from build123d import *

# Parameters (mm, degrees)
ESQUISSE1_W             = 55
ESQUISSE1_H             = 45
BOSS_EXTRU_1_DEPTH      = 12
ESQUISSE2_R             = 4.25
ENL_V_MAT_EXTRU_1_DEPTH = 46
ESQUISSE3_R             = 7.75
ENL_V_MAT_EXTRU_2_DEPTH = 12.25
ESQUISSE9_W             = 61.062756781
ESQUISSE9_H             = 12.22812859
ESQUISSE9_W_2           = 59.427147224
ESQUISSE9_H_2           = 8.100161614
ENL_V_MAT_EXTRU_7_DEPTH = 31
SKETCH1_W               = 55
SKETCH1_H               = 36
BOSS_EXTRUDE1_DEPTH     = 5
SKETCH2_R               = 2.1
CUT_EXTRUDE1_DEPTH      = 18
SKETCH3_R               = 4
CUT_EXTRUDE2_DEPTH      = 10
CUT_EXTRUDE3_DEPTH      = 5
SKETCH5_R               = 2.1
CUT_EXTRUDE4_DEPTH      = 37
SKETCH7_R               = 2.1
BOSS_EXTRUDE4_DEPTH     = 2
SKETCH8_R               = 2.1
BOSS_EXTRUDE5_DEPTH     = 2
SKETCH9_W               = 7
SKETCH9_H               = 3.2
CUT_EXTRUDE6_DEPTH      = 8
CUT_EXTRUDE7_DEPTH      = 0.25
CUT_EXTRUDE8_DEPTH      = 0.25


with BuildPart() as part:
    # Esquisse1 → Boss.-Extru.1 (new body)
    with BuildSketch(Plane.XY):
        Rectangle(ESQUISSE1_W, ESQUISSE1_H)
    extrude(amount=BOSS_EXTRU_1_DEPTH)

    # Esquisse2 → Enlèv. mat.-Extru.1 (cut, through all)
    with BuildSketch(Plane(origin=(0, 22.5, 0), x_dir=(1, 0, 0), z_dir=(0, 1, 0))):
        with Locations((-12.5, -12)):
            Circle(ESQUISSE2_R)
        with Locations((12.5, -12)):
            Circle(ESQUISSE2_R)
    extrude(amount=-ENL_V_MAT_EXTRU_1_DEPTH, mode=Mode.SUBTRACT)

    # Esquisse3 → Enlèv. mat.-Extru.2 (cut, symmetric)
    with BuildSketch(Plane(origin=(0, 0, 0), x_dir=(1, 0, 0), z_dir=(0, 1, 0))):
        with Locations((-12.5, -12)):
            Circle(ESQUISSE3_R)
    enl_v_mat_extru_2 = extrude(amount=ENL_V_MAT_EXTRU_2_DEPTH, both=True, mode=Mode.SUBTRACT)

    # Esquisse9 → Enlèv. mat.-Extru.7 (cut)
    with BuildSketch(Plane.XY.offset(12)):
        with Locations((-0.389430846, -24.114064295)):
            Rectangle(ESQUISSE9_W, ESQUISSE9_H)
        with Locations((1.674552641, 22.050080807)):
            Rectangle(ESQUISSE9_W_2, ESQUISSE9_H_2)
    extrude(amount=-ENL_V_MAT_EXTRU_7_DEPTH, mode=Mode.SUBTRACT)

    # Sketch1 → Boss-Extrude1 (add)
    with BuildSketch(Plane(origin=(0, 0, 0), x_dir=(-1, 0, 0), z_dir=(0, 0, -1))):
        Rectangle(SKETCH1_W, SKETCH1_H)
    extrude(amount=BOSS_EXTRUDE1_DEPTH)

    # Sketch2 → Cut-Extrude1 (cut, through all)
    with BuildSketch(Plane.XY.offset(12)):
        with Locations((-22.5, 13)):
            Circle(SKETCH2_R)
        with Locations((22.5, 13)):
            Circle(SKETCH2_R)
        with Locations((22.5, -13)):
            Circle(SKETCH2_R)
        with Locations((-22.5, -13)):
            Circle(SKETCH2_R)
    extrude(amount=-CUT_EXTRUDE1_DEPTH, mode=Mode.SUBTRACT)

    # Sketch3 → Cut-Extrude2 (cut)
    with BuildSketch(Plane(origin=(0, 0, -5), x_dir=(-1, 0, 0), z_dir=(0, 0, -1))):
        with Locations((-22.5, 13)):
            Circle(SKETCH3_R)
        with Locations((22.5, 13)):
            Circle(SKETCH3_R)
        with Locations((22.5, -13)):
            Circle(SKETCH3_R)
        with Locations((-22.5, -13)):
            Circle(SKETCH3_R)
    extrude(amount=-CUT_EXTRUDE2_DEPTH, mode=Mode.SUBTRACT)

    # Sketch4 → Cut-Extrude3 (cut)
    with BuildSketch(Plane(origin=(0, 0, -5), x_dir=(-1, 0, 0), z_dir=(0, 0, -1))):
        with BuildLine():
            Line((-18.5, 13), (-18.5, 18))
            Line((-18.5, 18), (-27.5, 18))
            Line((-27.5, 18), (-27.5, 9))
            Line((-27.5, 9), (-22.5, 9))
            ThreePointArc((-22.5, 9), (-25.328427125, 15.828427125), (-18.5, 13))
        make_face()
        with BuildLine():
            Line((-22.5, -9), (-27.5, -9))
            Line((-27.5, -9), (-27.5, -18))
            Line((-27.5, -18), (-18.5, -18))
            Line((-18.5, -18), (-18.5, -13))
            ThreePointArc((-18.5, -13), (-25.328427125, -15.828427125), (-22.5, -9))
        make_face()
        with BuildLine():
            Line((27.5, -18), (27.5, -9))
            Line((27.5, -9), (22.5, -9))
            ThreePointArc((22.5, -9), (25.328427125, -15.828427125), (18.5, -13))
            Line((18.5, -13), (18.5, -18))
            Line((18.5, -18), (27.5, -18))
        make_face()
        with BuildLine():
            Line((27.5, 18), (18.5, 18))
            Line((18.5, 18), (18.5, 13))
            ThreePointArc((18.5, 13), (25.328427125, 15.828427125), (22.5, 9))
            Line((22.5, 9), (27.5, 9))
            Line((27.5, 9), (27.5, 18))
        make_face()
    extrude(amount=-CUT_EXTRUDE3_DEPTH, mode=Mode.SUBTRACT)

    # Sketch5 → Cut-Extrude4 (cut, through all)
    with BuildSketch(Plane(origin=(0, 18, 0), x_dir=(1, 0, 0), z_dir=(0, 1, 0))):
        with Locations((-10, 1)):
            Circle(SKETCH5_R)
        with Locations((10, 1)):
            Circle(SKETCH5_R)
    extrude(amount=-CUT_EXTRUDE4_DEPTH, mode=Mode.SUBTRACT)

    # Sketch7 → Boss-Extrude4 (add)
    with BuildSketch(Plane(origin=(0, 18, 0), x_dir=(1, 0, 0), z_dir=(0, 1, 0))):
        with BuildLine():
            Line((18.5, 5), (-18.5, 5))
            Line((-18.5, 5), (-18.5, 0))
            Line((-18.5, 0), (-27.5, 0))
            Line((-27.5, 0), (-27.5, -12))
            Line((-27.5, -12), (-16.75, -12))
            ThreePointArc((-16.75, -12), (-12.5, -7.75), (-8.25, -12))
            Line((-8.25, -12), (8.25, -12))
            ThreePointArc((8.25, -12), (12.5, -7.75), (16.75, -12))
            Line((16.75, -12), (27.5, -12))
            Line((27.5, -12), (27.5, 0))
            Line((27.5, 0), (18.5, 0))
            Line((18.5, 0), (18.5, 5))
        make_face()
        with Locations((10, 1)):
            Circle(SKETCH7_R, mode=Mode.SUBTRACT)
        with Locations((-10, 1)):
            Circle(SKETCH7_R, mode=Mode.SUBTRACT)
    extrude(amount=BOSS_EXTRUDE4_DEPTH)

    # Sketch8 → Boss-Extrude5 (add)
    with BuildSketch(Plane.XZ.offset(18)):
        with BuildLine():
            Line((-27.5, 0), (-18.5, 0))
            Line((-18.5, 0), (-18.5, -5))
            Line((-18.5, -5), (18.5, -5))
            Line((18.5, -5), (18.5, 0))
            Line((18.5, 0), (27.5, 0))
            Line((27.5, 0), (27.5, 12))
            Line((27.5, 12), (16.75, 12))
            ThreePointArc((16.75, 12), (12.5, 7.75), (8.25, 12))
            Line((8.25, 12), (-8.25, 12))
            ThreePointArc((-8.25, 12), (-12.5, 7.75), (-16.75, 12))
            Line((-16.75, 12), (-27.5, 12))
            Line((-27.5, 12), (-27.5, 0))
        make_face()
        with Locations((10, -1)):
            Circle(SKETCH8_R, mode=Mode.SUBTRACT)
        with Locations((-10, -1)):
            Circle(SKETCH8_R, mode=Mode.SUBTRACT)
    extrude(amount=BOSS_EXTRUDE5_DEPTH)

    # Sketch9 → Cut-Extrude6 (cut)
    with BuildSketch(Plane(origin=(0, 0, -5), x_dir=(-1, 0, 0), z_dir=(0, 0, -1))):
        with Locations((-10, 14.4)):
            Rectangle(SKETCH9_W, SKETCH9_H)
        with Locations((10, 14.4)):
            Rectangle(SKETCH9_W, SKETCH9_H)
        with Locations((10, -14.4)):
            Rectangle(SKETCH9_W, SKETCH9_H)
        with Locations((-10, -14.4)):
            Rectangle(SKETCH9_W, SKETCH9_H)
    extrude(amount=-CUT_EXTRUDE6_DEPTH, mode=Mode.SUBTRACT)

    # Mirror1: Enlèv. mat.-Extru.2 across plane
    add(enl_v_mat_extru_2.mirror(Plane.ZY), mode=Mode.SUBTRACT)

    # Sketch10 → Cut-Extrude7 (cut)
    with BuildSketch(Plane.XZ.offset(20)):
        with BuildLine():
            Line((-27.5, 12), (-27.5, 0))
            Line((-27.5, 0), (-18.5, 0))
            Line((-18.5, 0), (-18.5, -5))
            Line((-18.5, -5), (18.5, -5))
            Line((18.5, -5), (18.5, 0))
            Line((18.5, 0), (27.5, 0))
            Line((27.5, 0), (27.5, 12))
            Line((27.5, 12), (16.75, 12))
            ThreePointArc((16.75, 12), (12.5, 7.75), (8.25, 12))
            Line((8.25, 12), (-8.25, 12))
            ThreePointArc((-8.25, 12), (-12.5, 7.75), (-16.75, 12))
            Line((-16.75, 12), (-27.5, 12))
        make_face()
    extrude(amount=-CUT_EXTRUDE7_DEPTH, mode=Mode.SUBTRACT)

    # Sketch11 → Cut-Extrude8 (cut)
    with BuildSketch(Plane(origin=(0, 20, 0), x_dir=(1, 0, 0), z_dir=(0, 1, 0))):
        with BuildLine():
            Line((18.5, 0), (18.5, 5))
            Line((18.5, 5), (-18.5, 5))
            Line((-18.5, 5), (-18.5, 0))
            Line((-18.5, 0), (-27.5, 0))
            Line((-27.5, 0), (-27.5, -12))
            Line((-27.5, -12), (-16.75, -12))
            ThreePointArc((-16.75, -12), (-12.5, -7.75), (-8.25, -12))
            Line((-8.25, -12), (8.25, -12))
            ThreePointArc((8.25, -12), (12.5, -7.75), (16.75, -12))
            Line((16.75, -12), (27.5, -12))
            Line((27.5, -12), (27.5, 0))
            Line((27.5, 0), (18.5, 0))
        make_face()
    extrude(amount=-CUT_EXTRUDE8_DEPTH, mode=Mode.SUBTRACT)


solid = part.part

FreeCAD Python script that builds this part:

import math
import FreeCAD as App
import Part
import Sketcher

V = App.Vector


def add_polygon(sketch, points):
    """Adds a closed chain of lines whose ends are joined by coincident constraints."""
    first, n = sketch.GeometryCount, len(points)
    for a, b in zip(points, points[1:] + points[:1]):
        sketch.addGeometry(Part.LineSegment(App.Vector(*a, 0), App.Vector(*b, 0)), False)
    for i in range(n):
        sketch.addConstraint(Sketcher.Constraint("Coincident", first + i, 2, first + (i + 1) % n, 1))

doc = App.newDocument("Part")
body = doc.addObject("PartDesign::Body", "Body")

# Sketch on XY plane
sketch1 = doc.addObject("Sketcher::SketchObject", "Sketch")
body.addObject(sketch1)
sketch1.AttachmentSupport = (doc.XY_Plane, [""])
sketch1.MapMode = "FlatFace"
add_polygon(sketch1, [(-28, 22), (-28, -22), (28, -22), (28, 22)])  # lines 0-3
sketch1.addConstraint(Sketcher.Constraint("Vertical", 0))
sketch1.addConstraint(Sketcher.Constraint("Horizontal", 1))
sketch1.addConstraint(Sketcher.Constraint("Vertical", 2))
sketch1.addConstraint(Sketcher.Constraint("Horizontal", 3))
sketch1.addConstraint(Sketcher.Constraint("Symmetric", 0, 2, 2, 2, -1, 1))
sketch1.addConstraint(Sketcher.Constraint("DistanceX", 1, 1, 1, 2, 55.0))
sketch1.addConstraint(Sketcher.Constraint("DistanceY", 0, 2, 0, 1, 45.0))
pad1 = doc.addObject("PartDesign::Pad", "Pad")
body.addObject(pad1)
pad1.Profile = sketch1
pad1.Length = 12

# Sketch on XZ plane
sketch2 = doc.addObject("Sketcher::SketchObject", "Sketch001")
body.addObject(sketch2)
sketch2.AttachmentSupport = (doc.XZ_Plane, [""])
sketch2.MapMode = "FlatFace"
sketch2.AttachmentOffset = App.Placement(V(0, 0, -22.5), App.Rotation())
sketch2.addGeometry(Part.Circle(V(-12.5, 12, 0), V(0, 0, 1), 4.2), False)
sketch2.addGeometry(Part.Circle(V(12.5, 12, 0), V(0, 0, 1), 4.2), False)
sketch2.addConstraint(Sketcher.Constraint("Equal", 0, 1))
sketch2.addConstraint(Sketcher.Constraint("Symmetric", 0, 3, 1, 3, -2))
sketch2.addConstraint(Sketcher.Constraint("Diameter", 0, 8.5))
sketch2.addConstraint(Sketcher.Constraint("DistanceY", -1, 1, 0, 3, 12.0))
sketch2.addConstraint(Sketcher.Constraint("DistanceX", 0, 3, 1, 3, 25.0))
pocket1 = doc.addObject("PartDesign::Pocket", "Pocket")
body.addObject(pocket1)
pocket1.Profile = sketch2
pocket1.Type = "ThroughAll"
pocket1.Reversed = True

# Sketch on XZ plane
sketch3 = doc.addObject("Sketcher::SketchObject", "Sketch002")
body.addObject(sketch3)
sketch3.AttachmentSupport = (doc.XZ_Plane, [""])
sketch3.MapMode = "FlatFace"
sketch3.addGeometry(Part.Circle(V(-12, 12, 0), V(0, 0, 1), 8), False)
sketch3.addConstraint(Sketcher.Constraint("Diameter", 0, 15.5))
sketch3.addConstraint(Sketcher.Constraint("DistanceY", -1, 1, 0, 3, 12.0))
sketch3.addConstraint(Sketcher.Constraint("DistanceX", 0, 3, -1, 1, 12.5))
pocket2 = doc.addObject("PartDesign::Pocket", "Pocket001")
body.addObject(pocket2)
pocket2.Profile = sketch3
pocket2.Length = 24.5
pocket2.Midplane = True

# Sketch on XY plane
sketch4 = doc.addObject("Sketcher::SketchObject", "Sketch003")
body.addObject(sketch4)
sketch4.AttachmentSupport = (doc.XY_Plane, [""])
sketch4.MapMode = "FlatFace"
sketch4.AttachmentOffset = App.Placement(V(0, 0, 12), App.Rotation())
add_polygon(sketch4, [(-31, -18), (-31, -30), (30, -30), (30, -18)])  # lines 0-3
add_polygon(sketch4, [(-28, 26), (-28, 18), (31, 18), (31, 26)])  # lines 4-7
sketch4.addConstraint(Sketcher.Constraint("Vertical", 0))
sketch4.addConstraint(Sketcher.Constraint("Horizontal", 1))
sketch4.addConstraint(Sketcher.Constraint("Vertical", 2))
sketch4.addConstraint(Sketcher.Constraint("Horizontal", 3))
sketch4.addConstraint(Sketcher.Constraint("Vertical", 4))
sketch4.addConstraint(Sketcher.Constraint("Horizontal", 5))
sketch4.addConstraint(Sketcher.Constraint("Vertical", 6))
sketch4.addConstraint(Sketcher.Constraint("Horizontal", 7))
sketch4.addConstraint(Sketcher.Constraint("DistanceY", 2, 2, -1, 1, 18.0))
sketch4.addConstraint(Sketcher.Constraint("DistanceY", -1, 1, 4, 2, 18.0))
sketch4.addConstraint(Sketcher.Constraint("DistanceY", 0, 2, 0, 1, 12.228129))
sketch4.addConstraint(Sketcher.Constraint("DistanceY", 4, 2, 4, 1, 8.100162))
sketch4.addConstraint(Sketcher.Constraint("DistanceX", 1, 1, 1, 2, 61.062757))
sketch4.addConstraint(Sketcher.Constraint("DistanceX", 5, 1, 5, 2, 59.427147))
sketch4.addConstraint(Sketcher.Constraint("DistanceX", 0, 2, -1, 1, 30.920809))
sketch4.addConstraint(Sketcher.Constraint("DistanceX", 4, 2, -1, 1, 28.039021))
pocket3 = doc.addObject("PartDesign::Pocket", "Pocket002")
body.addObject(pocket3)
pocket3.Profile = sketch4
pocket3.Length = 31

# Sketch on XY plane
sketch5 = doc.addObject("Sketcher::SketchObject", "Sketch004")
body.addObject(sketch5)
sketch5.AttachmentSupport = (doc.XY_Plane, [""])
sketch5.MapMode = "FlatFace"
add_polygon(sketch5, [(28, 18), (28, -18), (-28, -18), (-28, 18)])  # lines 0-3
sketch5.addConstraint(Sketcher.Constraint("Vertical", 0))
sketch5.addConstraint(Sketcher.Constraint("Horizontal", 1))
sketch5.addConstraint(Sketcher.Constraint("Vertical", 2))
sketch5.addConstraint(Sketcher.Constraint("Horizontal", 3))
sketch5.addConstraint(Sketcher.Constraint("Symmetric", 0, 2, 2, 2, -1, 1))
sketch5.addConstraint(Sketcher.Constraint("DistanceX", 1, 2, 1, 1, 55.0))
sketch5.addConstraint(Sketcher.Constraint("DistanceY", 0, 2, 0, 1, 36.0))
pad2 = doc.addObject("PartDesign::Pad", "Pad001")
body.addObject(pad2)
pad2.Profile = sketch5
pad2.Length = 5
pad2.Reversed = True

# Sketch on XY plane
sketch6 = doc.addObject("Sketcher::SketchObject", "Sketch005")
body.addObject(sketch6)
sketch6.AttachmentSupport = (doc.XY_Plane, [""])
sketch6.MapMode = "FlatFace"
sketch6.AttachmentOffset = App.Placement(V(0, 0, 12), App.Rotation())
sketch6.addGeometry(Part.Circle(V(-22.5, 13, 0), V(0, 0, 1), 2.1), False)
sketch6.addGeometry(Part.Circle(V(22.5, 13, 0), V(0, 0, 1), 2.1), False)
sketch6.addGeometry(Part.Circle(V(22.5, -13, 0), V(0, 0, 1), 2.1), False)
sketch6.addGeometry(Part.Circle(V(-22.5, -13, 0), V(0, 0, 1), 2.1), False)
sketch6.addConstraint(Sketcher.Constraint("Equal", 0, 1))
sketch6.addConstraint(Sketcher.Constraint("Equal", 1, 2))
sketch6.addConstraint(Sketcher.Constraint("Equal", 2, 3))
sketch6.addConstraint(Sketcher.Constraint("Symmetric", 0, 3, 2, 3, -1, 1))
sketch6.addConstraint(Sketcher.Constraint("Symmetric", 1, 3, 3, 3, -1, 1))
sketch6.addConstraint(Sketcher.Constraint("Symmetric", 0, 3, 1, 3, -2))
sketch6.addConstraint(Sketcher.Constraint("Diameter", 0, 4.2))
sketch6.addConstraint(Sketcher.Constraint("DistanceY", -1, 1, 0, 3, 13.0))
sketch6.addConstraint(Sketcher.Constraint("DistanceX", 0, 3, 1, 3, 45.0))
pocket4 = doc.addObject("PartDesign::Pocket", "Pocket003")
body.addObject(pocket4)
pocket4.Profile = sketch6
pocket4.Type = "ThroughAll"

# Sketch on XY plane
sketch7 = doc.addObject("Sketcher::SketchObject", "Sketch006")
body.addObject(sketch7)
sketch7.AttachmentSupport = (doc.XY_Plane, [""])
sketch7.MapMode = "FlatFace"
sketch7.AttachmentOffset = App.Placement(V(0, 0, -5), App.Rotation())
sketch7.addGeometry(Part.Circle(V(22.5, 13, 0), V(0, 0, 1), 4), False)
sketch7.addGeometry(Part.Circle(V(-22.5, 13, 0), V(0, 0, 1), 4), False)
sketch7.addGeometry(Part.Circle(V(-22.5, -13, 0), V(0, 0, 1), 4), False)
sketch7.addGeometry(Part.Circle(V(22.5, -13, 0), V(0, 0, 1), 4), False)
sketch7.addConstraint(Sketcher.Constraint("Equal", 0, 1))
sketch7.addConstraint(Sketcher.Constraint("Equal", 1, 2))
sketch7.addConstraint(Sketcher.Constraint("Equal", 2, 3))
sketch7.addConstraint(Sketcher.Constraint("Symmetric", 0, 3, 2, 3, -1, 1))
sketch7.addConstraint(Sketcher.Constraint("Symmetric", 1, 3, 3, 3, -1, 1))
sketch7.addConstraint(Sketcher.Constraint("Symmetric", 0, 3, 1, 3, -2))
sketch7.addConstraint(Sketcher.Constraint("Diameter", 0, 8.0))
sketch7.addConstraint(Sketcher.Constraint("DistanceY", -1, 1, 0, 3, 13.0))
sketch7.addConstraint(Sketcher.Constraint("DistanceX", 1, 3, 0, 3, 45.0))
pocket5 = doc.addObject("PartDesign::Pocket", "Pocket004")
body.addObject(pocket5)
pocket5.Profile = sketch7
pocket5.Length = 10
pocket5.Reversed = True

# Sketch on XY plane
sketch8 = doc.addObject("Sketcher::SketchObject", "Sketch007")
body.addObject(sketch8)
sketch8.AttachmentSupport = (doc.XY_Plane, [""])
sketch8.MapMode = "FlatFace"
sketch8.AttachmentOffset = App.Placement(V(0, 0, -5), App.Rotation())
sketch8.addGeometry(Part.LineSegment(V(18.5, 13, 0), V(18.5, 18, 0)), False)
sketch8.addGeometry(Part.LineSegment(V(18.5, 18, 0), V(27.5, 18, 0)), False)
sketch8.addGeometry(Part.LineSegment(V(27.5, 18, 0), V(27.5, 9, 0)), False)
sketch8.addGeometry(Part.LineSegment(V(27.5, 9, 0), V(22.5, 9, 0)), False)
sketch8.addGeometry(Part.ArcOfCircle(Part.Circle(V(22.5, 13, 0), V(0, 0, 1), 4), math.radians(-90), math.radians(180)), False)
sketch8.addGeometry(Part.LineSegment(V(22.5, -9, 0), V(27.5, -9, 0)), False)
sketch8.addGeometry(Part.LineSegment(V(27.5, -9, 0), V(27.5, -18, 0)), False)
sketch8.addGeometry(Part.LineSegment(V(27.5, -18, 0), V(18.5, -18, 0)), False)
sketch8.addGeometry(Part.LineSegment(V(18.5, -18, 0), V(18.5, -13, 0)), False)
sketch8.addGeometry(Part.ArcOfCircle(Part.Circle(V(22.5, -13, 0), V(0, 0, 1), 4), math.radians(180), math.radians(450)), False)
sketch8.addGeometry(Part.LineSegment(V(-27.5, -18, 0), V(-27.5, -9, 0)), False)
sketch8.addGeometry(Part.LineSegment(V(-27.5, -9, 0), V(-22.5, -9, 0)), False)
sketch8.addGeometry(Part.ArcOfCircle(Part.Circle(V(-22.5, -13, 0), V(0, 0, 1), 4), math.radians(90), math.radians(360)), False)
sketch8.addGeometry(Part.LineSegment(V(-18.5, -13, 0), V(-18.5, -18, 0)), False)
sketch8.addGeometry(Part.LineSegment(V(-18.5, -18, 0), V(-27.5, -18, 0)), False)
sketch8.addGeometry(Part.LineSegment(V(-27.5, 18, 0), V(-18.5, 18, 0)), False)
sketch8.addGeometry(Part.LineSegment(V(-18.5, 18, 0), V(-18.5, 13, 0)), False)
sketch8.addGeometry(Part.ArcOfCircle(Part.Circle(V(-22.5, 13, 0), V(0, 0, 1), 4), math.radians(0), math.radians(270)), False)
sketch8.addGeometry(Part.LineSegment(V(-22.5, 9, 0), V(-27.5, 9, 0)), False)
sketch8.addGeometry(Part.LineSegment(V(-27.5, 9, 0), V(-27.5, 18, 0)), False)
sketch8.addConstraint(Sketcher.Constraint("Coincident", 0, 2, 1, 1))
sketch8.addConstraint(Sketcher.Constraint("Coincident", 1, 2, 2, 1))
sketch8.addConstraint(Sketcher.Constraint("Coincident", 2, 2, 3, 1))
sketch8.addConstraint(Sketcher.Constraint("Tangent", 3, 2, 4, 1))
sketch8.addConstraint(Sketcher.Constraint("Tangent", 4, 2, 0, 1))
sketch8.addConstraint(Sketcher.Constraint("Coincident", 5, 2, 6, 1))
sketch8.addConstraint(Sketcher.Constraint("Coincident", 6, 2, 7, 1))
sketch8.addConstraint(Sketcher.Constraint("Coincident", 7, 2, 8, 1))
sketch8.addConstraint(Sketcher.Constraint("Tangent", 8, 2, 9, 1))
sketch8.addConstraint(Sketcher.Constraint("Tangent", 9, 2, 5, 1))
sketch8.addConstraint(Sketcher.Constraint("Coincident", 10, 2, 11, 1))
sketch8.addConstraint(Sketcher.Constraint("Tangent", 11, 2, 12, 1))
sketch8.addConstraint(Sketcher.Constraint("Tangent", 12, 2, 13, 1))
sketch8.addConstraint(Sketcher.Constraint("Coincident", 13, 2, 14, 1))
sketch8.addConstraint(Sketcher.Constraint("Coincident", 14, 2, 10, 1))
sketch8.addConstraint(Sketcher.Constraint("Coincident", 15, 2, 16, 1))
sketch8.addConstraint(Sketcher.Constraint("Tangent", 16, 2, 17, 1))
sketch8.addConstraint(Sketcher.Constraint("Tangent", 17, 2, 18, 1))
sketch8.addConstraint(Sketcher.Constraint("Coincident", 18, 2, 19, 1))
sketch8.addConstraint(Sketcher.Constraint("Coincident", 19, 2, 15, 1))
sketch8.addConstraint(Sketcher.Constraint("Vertical", 0))
sketch8.addConstraint(Sketcher.Constraint("Horizontal", 1))
sketch8.addConstraint(Sketcher.Constraint("Vertical", 2))
sketch8.addConstraint(Sketcher.Constraint("Horizontal", 3))
sketch8.addConstraint(Sketcher.Constraint("Horizontal", 5))
sketch8.addConstraint(Sketcher.Constraint("Vertical", 6))
sketch8.addConstraint(Sketcher.Constraint("Horizontal", 7))
sketch8.addConstraint(Sketcher.Constraint("Vertical", 8))
sketch8.addConstraint(Sketcher.Constraint("Vertical", 10))
sketch8.addConstraint(Sketcher.Constraint("Horizontal", 11))
sketch8.addConstraint(Sketcher.Constraint("Vertical", 13))
sketch8.addConstraint(Sketcher.Constraint("Horizontal", 14))
sketch8.addConstraint(Sketcher.Constraint("Horizontal", 15))
sketch8.addConstraint(Sketcher.Constraint("Vertical", 16))
sketch8.addConstraint(Sketcher.Constraint("Horizontal", 18))
sketch8.addConstraint(Sketcher.Constraint("Vertical", 19))
sketch8.addConstraint(Sketcher.Constraint("Equal", 4, 9))
sketch8.addConstraint(Sketcher.Constraint("Equal", 9, 12))
sketch8.addConstraint(Sketcher.Constraint("Equal", 12, 17))
sketch8.addConstraint(Sketcher.Constraint("Symmetric", 4, 3, 12, 3, -1, 1))
sketch8.addConstraint(Sketcher.Constraint("Symmetric", 9, 3, 17, 3, -1, 1))
sketch8.addConstraint(Sketcher.Constraint("Symmetric", 1, 2, 14, 2, -1, 1))
sketch8.addConstraint(Sketcher.Constraint("Symmetric", 6, 2, 19, 2, -1, 1))
sketch8.addConstraint(Sketcher.Constraint("Symmetric", 9, 3, 12, 3, -2))
sketch8.addConstraint(Sketcher.Constraint("Symmetric", 6, 2, 14, 2, -2))
sketch8.addConstraint(Sketcher.Constraint("Equal", 18, 0))
sketch8.addConstraint(Sketcher.Constraint("Radius", 4, 4.0))
sketch8.addConstraint(Sketcher.Constraint("DistanceX", 1, 1, 1, 2, 9.0))
sketch8.addConstraint(Sketcher.Constraint("DistanceY", -1, 1, 4, 3, 13.0))
sketch8.addConstraint(Sketcher.Constraint("DistanceX", 12, 3, 9, 3, 45.0))
pocket6 = doc.addObject("PartDesign::Pocket", "Pocket005")
body.addObject(pocket6)
pocket6.Profile = sketch8
pocket6.Length = 5
pocket6.Reversed = True

# Sketch on XZ plane
sketch9 = doc.addObject("Sketcher::SketchObject", "Sketch008")
body.addObject(sketch9)
sketch9.AttachmentSupport = (doc.XZ_Plane, [""])
sketch9.MapMode = "FlatFace"
sketch9.AttachmentOffset = App.Placement(V(0, 0, -18), App.Rotation())
sketch9.addGeometry(Part.Circle(V(-10, -1, 0), V(0, 0, 1), 2.1), False)
sketch9.addGeometry(Part.Circle(V(10, -1, 0), V(0, 0, 1), 2.1), False)
sketch9.addConstraint(Sketcher.Constraint("Equal", 0, 1))
sketch9.addConstraint(Sketcher.Constraint("Symmetric", 0, 3, 1, 3, -2))
sketch9.addConstraint(Sketcher.Constraint("Diameter", 0, 4.2))
sketch9.addConstraint(Sketcher.Constraint("DistanceX", 0, 3, -1, 1, 10.0))
sketch9.addConstraint(Sketcher.Constraint("DistanceY", 0, 3, -1, 1, 1.0))
pocket7 = doc.addObject("PartDesign::Pocket", "Pocket006")
body.addObject(pocket7)
pocket7.Profile = sketch9
pocket7.Type = "ThroughAll"
pocket7.Reversed = True

# Sketch on XZ plane
sketch10 = doc.addObject("Sketcher::SketchObject", "Sketch009")
body.addObject(sketch10)
sketch10.AttachmentSupport = (doc.XZ_Plane, [""])
sketch10.MapMode = "FlatFace"
sketch10.AttachmentOffset = App.Placement(V(0, 0, -18), App.Rotation())
sketch10.addGeometry(Part.LineSegment(V(18.5, -5, 0), V(-18.5, -5, 0)), False)
sketch10.addGeometry(Part.LineSegment(V(-18.5, -5, 0), V(-18.5, 0, 0)), False)
sketch10.addGeometry(Part.LineSegment(V(-18.5, 0, 0), V(-27.5, 0, 0)), False)
sketch10.addGeometry(Part.LineSegment(V(-27.5, 0, 0), V(-27.5, 12, 0)), False)
sketch10.addGeometry(Part.LineSegment(V(-27.5, 12, 0), V(-16.8, 12, 0)), False)
sketch10.addGeometry(Part.ArcOfCircle(Part.Circle(V(-12.5, 12, 0), V(0, 0, 1), 4.2), math.radians(180), math.radians(360)), False)
sketch10.addGeometry(Part.LineSegment(V(-8.2, 12, 0), V(8.2, 12, 0)), False)
sketch10.addGeometry(Part.ArcOfCircle(Part.Circle(V(12.5, 12, 0), V(0, 0, 1), 4.2), math.radians(180), math.radians(360)), False)
sketch10.addGeometry(Part.LineSegment(V(16.8, 12, 0), V(27.5, 12, 0)), False)
sketch10.addGeometry(Part.LineSegment(V(27.5, 12, 0), V(27.5, 0, 0)), False)
sketch10.addGeometry(Part.LineSegment(V(27.5, 0, 0), V(18.5, 0, 0)), False)
sketch10.addGeometry(Part.LineSegment(V(18.5, 0, 0), V(18.5, -5, 0)), False)
sketch10.addGeometry(Part.Circle(V(-10, -1, 0), V(0, 0, 1), 2.1), False)
sketch10.addGeometry(Part.Circle(V(10, -1, 0), V(0, 0, 1), 2.1), False)
sketch10.addConstraint(Sketcher.Constraint("Coincident", 0, 2, 1, 1))
sketch10.addConstraint(Sketcher.Constraint("Coincident", 1, 2, 2, 1))
sketch10.addConstraint(Sketcher.Constraint("Coincident", 2, 2, 3, 1))
sketch10.addConstraint(Sketcher.Constraint("Coincident", 3, 2, 4, 1))
sketch10.addConstraint(Sketcher.Constraint("Coincident", 4, 2, 5, 1))
sketch10.addConstraint(Sketcher.Constraint("Coincident", 5, 2, 6, 1))
sketch10.addConstraint(Sketcher.Constraint("Coincident", 6, 2, 7, 1))
sketch10.addConstraint(Sketcher.Constraint("Coincident", 7, 2, 8, 1))
sketch10.addConstraint(Sketcher.Constraint("Coincident", 8, 2, 9, 1))
sketch10.addConstraint(Sketcher.Constraint("Coincident", 9, 2, 10, 1))
sketch10.addConstraint(Sketcher.Constraint("Coincident", 10, 2, 11, 1))
sketch10.addConstraint(Sketcher.Constraint("Coincident", 11, 2, 0, 1))
sketch10.addConstraint(Sketcher.Constraint("Horizontal", 0))
sketch10.addConstraint(Sketcher.Constraint("Vertical", 1))
sketch10.addConstraint(Sketcher.Constraint("Horizontal", 2))
sketch10.addConstraint(Sketcher.Constraint("Vertical", 3))
sketch10.addConstraint(Sketcher.Constraint("Horizontal", 4))
sketch10.addConstraint(Sketcher.Constraint("Horizontal", 6))
sketch10.addConstraint(Sketcher.Constraint("Horizontal", 8))
sketch10.addConstraint(Sketcher.Constraint("Vertical", 9))
sketch10.addConstraint(Sketcher.Constraint("Horizontal", 10))
sketch10.addConstraint(Sketcher.Constraint("Vertical", 11))
sketch10.addConstraint(Sketcher.Constraint("Equal", 5, 7))
sketch10.addConstraint(Sketcher.Constraint("Equal", 12, 13))
sketch10.addConstraint(Sketcher.Constraint("Symmetric", 2, 2, 9, 2, -1, 1))
sketch10.addConstraint(Sketcher.Constraint("Symmetric", 5, 3, 7, 3, -2))
sketch10.addConstraint(Sketcher.Constraint("Symmetric", 12, 3, 13, 3, -2))
sketch10.addConstraint(Sketcher.Constraint("Symmetric", 1, 2, 10, 2, -2))
sketch10.addConstraint(Sketcher.Constraint("Horizontal", 7, 3, 3, 2))
sketch10.addConstraint(Sketcher.Constraint("Horizontal", 4, 2, 5, 2))
sketch10.addConstraint(Sketcher.Constraint("Horizontal", 6, 2, 7, 2))
sketch10.addConstraint(Sketcher.Constraint("Diameter", 12, 4.2))
sketch10.addConstraint(Sketcher.Constraint("DistanceX", 0, 2, 0, 1, 37.0))
sketch10.addConstraint(Sketcher.Constraint("DistanceX", 2, 2, 2, 1, 9.0))
sketch10.addConstraint(Sketcher.Constraint("DistanceY", 1, 1, 1, 2, 5.0))
sketch10.addConstraint(Sketcher.Constraint("DistanceY", 3, 1, 3, 2, 12.0))
sketch10.addConstraint(Sketcher.Constraint("Radius", 5, 4.25))
sketch10.addConstraint(Sketcher.Constraint("DistanceX", 6, 1, 6, 2, 16.5))
sketch10.addConstraint(Sketcher.Constraint("DistanceX", 12, 3, -1, 1, 10.0))
sketch10.addConstraint(Sketcher.Constraint("DistanceY", 12, 3, -1, 1, 1.0))
pad3 = doc.addObject("PartDesign::Pad", "Pad002")
body.addObject(pad3)
pad3.Profile = sketch10
pad3.Length = 2
pad3.Reversed = True

# Sketch on XZ plane
sketch11 = doc.addObject("Sketcher::SketchObject", "Sketch010")
body.addObject(sketch11)
sketch11.AttachmentSupport = (doc.XZ_Plane, [""])
sketch11.MapMode = "FlatFace"
sketch11.AttachmentOffset = App.Placement(V(0, 0, 18), App.Rotation())
sketch11.addGeometry(Part.LineSegment(V(-27.5, 0, 0), V(-18.5, 0, 0)), False)
sketch11.addGeometry(Part.LineSegment(V(-18.5, 0, 0), V(-18.5, -5, 0)), False)
sketch11.addGeometry(Part.LineSegment(V(-18.5, -5, 0), V(18.5, -5, 0)), False)
sketch11.addGeometry(Part.LineSegment(V(18.5, -5, 0), V(18.5, 0, 0)), False)
sketch11.addGeometry(Part.LineSegment(V(18.5, 0, 0), V(27.5, 0, 0)), False)
sketch11.addGeometry(Part.LineSegment(V(27.5, 0, 0), V(27.5, 12, 0)), False)
sketch11.addGeometry(Part.LineSegment(V(27.5, 12, 0), V(16.8, 12, 0)), False)
sketch11.addGeometry(Part.ArcOfCircle(Part.Circle(V(12.5, 12, 0), V(0, 0, 1), 4.2), math.radians(180), math.radians(360)), False)
sketch11.addGeometry(Part.LineSegment(V(8.2, 12, 0), V(-8.2, 12, 0)), False)
sketch11.addGeometry(Part.ArcOfCircle(Part.Circle(V(-12.5, 12, 0), V(0, 0, 1), 4.2), math.radians(180), math.radians(360)), False)
sketch11.addGeometry(Part.LineSegment(V(-16.8, 12, 0), V(-27.5, 12, 0)), False)
sketch11.addGeometry(Part.LineSegment(V(-27.5, 12, 0), V(-27.5, 0, 0)), False)
sketch11.addGeometry(Part.Circle(V(-10, -1, 0), V(0, 0, 1), 2.1), False)
sketch11.addGeometry(Part.Circle(V(10, -1, 0), V(0, 0, 1), 2.1), False)
sketch11.addConstraint(Sketcher.Constraint("Coincident", 0, 2, 1, 1))
sketch11.addConstraint(Sketcher.Constraint("Coincident", 1, 2, 2, 1))
sketch11.addConstraint(Sketcher.Constraint("Coincident", 2, 2, 3, 1))
sketch11.addConstraint(Sketcher.Constraint("Coincident", 3, 2, 4, 1))
sketch11.addConstraint(Sketcher.Constraint("Coincident", 4, 2, 5, 1))
sketch11.addConstraint(Sketcher.Constraint("Coincident", 5, 2, 6, 1))
sketch11.addConstraint(Sketcher.Constraint("Coincident", 6, 2, 7, 2))
sketch11.addConstraint(Sketcher.Constraint("Coincident", 7, 1, 8, 1))
sketch11.addConstraint(Sketcher.Constraint("Coincident", 8, 2, 9, 2))
sketch11.addConstraint(Sketcher.Constraint("Coincident", 9, 1, 10, 1))
sketch11.addConstraint(Sketcher.Constraint("Coincident", 10, 2, 11, 1))
sketch11.addConstraint(Sketcher.Constraint("Coincident", 11, 2, 0, 1))
sketch11.addConstraint(Sketcher.Constraint("Horizontal", 0))
sketch11.addConstraint(Sketcher.Constraint("Vertical", 1))
sketch11.addConstraint(Sketcher.Constraint("Horizontal", 2))
sketch11.addConstraint(Sketcher.Constraint("Vertical", 3))
sketch11.addConstraint(Sketcher.Constraint("Horizontal", 4))
sketch11.addConstraint(Sketcher.Constraint("Vertical", 5))
sketch11.addConstraint(Sketcher.Constraint("Horizontal", 6))
sketch11.addConstraint(Sketcher.Constraint("Horizontal", 8))
sketch11.addConstraint(Sketcher.Constraint("Horizontal", 10))
sketch11.addConstraint(Sketcher.Constraint("Vertical", 11))
sketch11.addConstraint(Sketcher.Constraint("Equal", 7, 9))
sketch11.addConstraint(Sketcher.Constraint("Equal", 12, 13))
sketch11.addConstraint(Sketcher.Constraint("Symmetric", 0, 2, 3, 2, -1, 1))
sketch11.addConstraint(Sketcher.Constraint("Symmetric", 7, 3, 9, 3, -2))
sketch11.addConstraint(Sketcher.Constraint("Symmetric", 12, 3, 13, 3, -2))
sketch11.addConstraint(Sketcher.Constraint("Symmetric", 5, 2, 10, 2, -2))
sketch11.addConstraint(Sketcher.Constraint("PointOnObject", 0, 2, -1))
sketch11.addConstraint(Sketcher.Constraint("Horizontal", 9, 3, 5, 2))
sketch11.addConstraint(Sketcher.Constraint("Horizontal", 6, 2, 7, 1))
sketch11.addConstraint(Sketcher.Constraint("Diameter", 12, 4.2))
sketch11.addConstraint(Sketcher.Constraint("DistanceX", 0, 1, 0, 2, 9.0))
sketch11.addConstraint(Sketcher.Constraint("DistanceX", 2, 1, 2, 2, 37.0))
sketch11.addConstraint(Sketcher.Constraint("DistanceY", 1, 2, 1, 1, 5.0))
sketch11.addConstraint(Sketcher.Constraint("DistanceY", 5, 1, 5, 2, 12.0))
sketch11.addConstraint(Sketcher.Constraint("Radius", 7, 4.25))
sketch11.addConstraint(Sketcher.Constraint("DistanceX", 8, 2, 8, 1, 16.5))
sketch11.addConstraint(Sketcher.Constraint("DistanceX", 12, 3, -1, 1, 10.0))
sketch11.addConstraint(Sketcher.Constraint("DistanceY", 12, 3, -1, 1, 1.0))
pad4 = doc.addObject("PartDesign::Pad", "Pad003")
body.addObject(pad4)
pad4.Profile = sketch11
pad4.Length = 2

# Sketch on XY plane
sketch12 = doc.addObject("Sketcher::SketchObject", "Sketch011")
body.addObject(sketch12)
sketch12.AttachmentSupport = (doc.XY_Plane, [""])
sketch12.MapMode = "FlatFace"
sketch12.AttachmentOffset = App.Placement(V(0, 0, -5), App.Rotation())
add_polygon(sketch12, [(13.5, 16), (13.5, 12.8), (6.5, 12.8), (6.5, 16)])  # lines 0-3
add_polygon(sketch12, [(-6.5, 16), (-6.5, 12.8), (-13.5, 12.8), (-13.5, 16)])  # lines 4-7
add_polygon(sketch12, [(-6.5, -12.8), (-6.5, -16), (-13.5, -16), (-13.5, -12.8)])  # lines 8-11
add_polygon(sketch12, [(13.5, -12.8), (13.5, -16), (6.5, -16), (6.5, -12.8)])  # lines 12-15
sketch12.addConstraint(Sketcher.Constraint("Vertical", 0))
sketch12.addConstraint(Sketcher.Constraint("Horizontal", 1))
sketch12.addConstraint(Sketcher.Constraint("Vertical", 2))
sketch12.addConstraint(Sketcher.Constraint("Horizontal", 3))
sketch12.addConstraint(Sketcher.Constraint("Vertical", 4))
sketch12.addConstraint(Sketcher.Constraint("Horizontal", 5))
sketch12.addConstraint(Sketcher.Constraint("Vertical", 6))
sketch12.addConstraint(Sketcher.Constraint("Horizontal", 7))
sketch12.addConstraint(Sketcher.Constraint("Vertical", 8))
sketch12.addConstraint(Sketcher.Constraint("Horizontal", 9))
sketch12.addConstraint(Sketcher.Constraint("Vertical", 10))
sketch12.addConstraint(Sketcher.Constraint("Horizontal", 11))
sketch12.addConstraint(Sketcher.Constraint("Vertical", 12))
sketch12.addConstraint(Sketcher.Constraint("Horizontal", 13))
sketch12.addConstraint(Sketcher.Constraint("Vertical", 14))
sketch12.addConstraint(Sketcher.Constraint("Horizontal", 15))
sketch12.addConstraint(Sketcher.Constraint("Symmetric", 2, 2, 8, 2, -1, 1))
sketch12.addConstraint(Sketcher.Constraint("Symmetric", 0, 2, 10, 2, -1, 1))
sketch12.addConstraint(Sketcher.Constraint("Symmetric", 6, 2, 12, 2, -1, 1))
sketch12.addConstraint(Sketcher.Constraint("Symmetric", 4, 2, 14, 2, -1, 1))
sketch12.addConstraint(Sketcher.Constraint("Symmetric", 1, 2, 4, 2, -2))
sketch12.addConstraint(Sketcher.Constraint("Symmetric", 3, 2, 6, 2, -2))
sketch12.addConstraint(Sketcher.Constraint("DistanceX", 1, 2, 1, 1, 7.0))
sketch12.addConstraint(Sketcher.Constraint("DistanceY", 0, 2, 0, 1, 3.2))
sketch12.addConstraint(Sketcher.Constraint("DistanceY", -1, 1, 2, 2, 16.0))
sketch12.addConstraint(Sketcher.Constraint("DistanceX", 4, 2, 1, 2, 13.0))
pocket8 = doc.addObject("PartDesign::Pocket", "Pocket007")
body.addObject(pocket8)
pocket8.Profile = sketch12
pocket8.Length = 8
pocket8.Reversed = True
doc.recompute()

mirrored = doc.addObject("PartDesign::Mirrored", "Mirrored")
body.addObject(mirrored)
mirrored.Originals = [pocket2]
mirrored.MirrorPlane = (doc.YZ_Plane, [""])
body.Tip = mirrored

# Sketch on XZ plane
sketch13 = doc.addObject("Sketcher::SketchObject", "Sketch012")
body.addObject(sketch13)
sketch13.AttachmentSupport = (doc.XZ_Plane, [""])
sketch13.MapMode = "FlatFace"
sketch13.AttachmentOffset = App.Placement(V(0, 0, 20), App.Rotation())
sketch13.addGeometry(Part.LineSegment(V(-27.5, 12, 0), V(-27.5, 0, 0)), False)
sketch13.addGeometry(Part.LineSegment(V(-27.5, 0, 0), V(-18.5, 0, 0)), False)
sketch13.addGeometry(Part.LineSegment(V(-18.5, 0, 0), V(-18.5, -5, 0)), False)
sketch13.addGeometry(Part.LineSegment(V(-18.5, -5, 0), V(18.5, -5, 0)), False)
sketch13.addGeometry(Part.LineSegment(V(18.5, -5, 0), V(18.5, 0, 0)), False)
sketch13.addGeometry(Part.LineSegment(V(18.5, 0, 0), V(27.5, 0, 0)), False)
sketch13.addGeometry(Part.LineSegment(V(27.5, 0, 0), V(27.5, 12, 0)), False)
sketch13.addGeometry(Part.LineSegment(V(27.5, 12, 0), V(16.8, 12, 0)), False)
sketch13.addGeometry(Part.ArcOfCircle(Part.Circle(V(12.5, 12, 0), V(0, 0, 1), 4.2), math.radians(180), math.radians(360)), False)
sketch13.addGeometry(Part.LineSegment(V(8.2, 12, 0), V(-8.2, 12, 0)), False)
sketch13.addGeometry(Part.ArcOfCircle(Part.Circle(V(-12.5, 12, 0), V(0, 0, 1), 4.2), math.radians(180), math.radians(360)), False)
sketch13.addGeometry(Part.LineSegment(V(-16.8, 12, 0), V(-27.5, 12, 0)), False)
sketch13.addConstraint(Sketcher.Constraint("Coincident", 0, 2, 1, 1))
sketch13.addConstraint(Sketcher.Constraint("Coincident", 1, 2, 2, 1))
sketch13.addConstraint(Sketcher.Constraint("Coincident", 2, 2, 3, 1))
sketch13.addConstraint(Sketcher.Constraint("Coincident", 3, 2, 4, 1))
sketch13.addConstraint(Sketcher.Constraint("Coincident", 4, 2, 5, 1))
sketch13.addConstraint(Sketcher.Constraint("Coincident", 5, 2, 6, 1))
sketch13.addConstraint(Sketcher.Constraint("Coincident", 6, 2, 7, 1))
sketch13.addConstraint(Sketcher.Constraint("Coincident", 7, 2, 8, 2))
sketch13.addConstraint(Sketcher.Constraint("Coincident", 8, 1, 9, 1))
sketch13.addConstraint(Sketcher.Constraint("Coincident", 9, 2, 10, 2))
sketch13.addConstraint(Sketcher.Constraint("Coincident", 10, 1, 11, 1))
sketch13.addConstraint(Sketcher.Constraint("Coincident", 11, 2, 0, 1))
sketch13.addConstraint(Sketcher.Constraint("Vertical", 0))
sketch13.addConstraint(Sketcher.Constraint("Horizontal", 1))
sketch13.addConstraint(Sketcher.Constraint("Vertical", 2))
sketch13.addConstraint(Sketcher.Constraint("Horizontal", 3))
sketch13.addConstraint(Sketcher.Constraint("Vertical", 4))
sketch13.addConstraint(Sketcher.Constraint("Horizontal", 5))
sketch13.addConstraint(Sketcher.Constraint("Vertical", 6))
sketch13.addConstraint(Sketcher.Constraint("Horizontal", 7))
sketch13.addConstraint(Sketcher.Constraint("Horizontal", 9))
sketch13.addConstraint(Sketcher.Constraint("Horizontal", 11))
sketch13.addConstraint(Sketcher.Constraint("Equal", 8, 10))
sketch13.addConstraint(Sketcher.Constraint("Symmetric", 1, 2, 4, 2, -1, 1))
sketch13.addConstraint(Sketcher.Constraint("Symmetric", 8, 3, 10, 3, -2))
sketch13.addConstraint(Sketcher.Constraint("Symmetric", 0, 2, 5, 2, -2))
sketch13.addConstraint(Sketcher.Constraint("Horizontal", 10, 3, 6, 2))
sketch13.addConstraint(Sketcher.Constraint("Horizontal", 7, 2, 8, 1))
sketch13.addConstraint(Sketcher.Constraint("Horizontal", 9, 2, 10, 1))
sketch13.addConstraint(Sketcher.Constraint("DistanceX", 1, 1, 1, 2, 9.0))
sketch13.addConstraint(Sketcher.Constraint("DistanceX", 3, 1, 3, 2, 37.0))
sketch13.addConstraint(Sketcher.Constraint("DistanceY", 0, 2, 0, 1, 12.0))
sketch13.addConstraint(Sketcher.Constraint("DistanceY", 2, 2, 2, 1, 5.0))
sketch13.addConstraint(Sketcher.Constraint("Radius", 8, 4.25))
sketch13.addConstraint(Sketcher.Constraint("DistanceX", 9, 2, 9, 1, 16.5))
pocket9 = doc.addObject("PartDesign::Pocket", "Pocket008")
body.addObject(pocket9)
pocket9.Profile = sketch13
pocket9.Length = 0.25

# Sketch on XZ plane
sketch14 = doc.addObject("Sketcher::SketchObject", "Sketch013")
body.addObject(sketch14)
sketch14.AttachmentSupport = (doc.XZ_Plane, [""])
sketch14.MapMode = "FlatFace"
sketch14.AttachmentOffset = App.Placement(V(0, 0, -20), App.Rotation())
sketch14.addGeometry(Part.LineSegment(V(18.5, 0, 0), V(18.5, -5, 0)), False)
sketch14.addGeometry(Part.LineSegment(V(18.5, -5, 0), V(-18.5, -5, 0)), False)
sketch14.addGeometry(Part.LineSegment(V(-18.5, -5, 0), V(-18.5, 0, 0)), False)
sketch14.addGeometry(Part.LineSegment(V(-18.5, 0, 0), V(-27.5, 0, 0)), False)
sketch14.addGeometry(Part.LineSegment(V(-27.5, 0, 0), V(-27.5, 12, 0)), False)
sketch14.addGeometry(Part.LineSegment(V(-27.5, 12, 0), V(-16.8, 12, 0)), False)
sketch14.addGeometry(Part.ArcOfCircle(Part.Circle(V(-12.5, 12, 0), V(0, 0, 1), 4.2), math.radians(180), math.radians(360)), False)
sketch14.addGeometry(Part.LineSegment(V(-8.2, 12, 0), V(8.2, 12, 0)), False)
sketch14.addGeometry(Part.ArcOfCircle(Part.Circle(V(12.5, 12, 0), V(0, 0, 1), 4.2), math.radians(180), math.radians(360)), False)
sketch14.addGeometry(Part.LineSegment(V(16.8, 12, 0), V(27.5, 12, 0)), False)
sketch14.addGeometry(Part.LineSegment(V(27.5, 12, 0), V(27.5, 0, 0)), False)
sketch14.addGeometry(Part.LineSegment(V(27.5, 0, 0), V(18.5, 0, 0)), False)
sketch14.addConstraint(Sketcher.Constraint("Coincident", 0, 2, 1, 1))
sketch14.addConstraint(Sketcher.Constraint("Coincident", 1, 2, 2, 1))
sketch14.addConstraint(Sketcher.Constraint("Coincident", 2, 2, 3, 1))
sketch14.addConstraint(Sketcher.Constraint("Coincident", 3, 2, 4, 1))
sketch14.addConstraint(Sketcher.Constraint("Coincident", 4, 2, 5, 1))
sketch14.addConstraint(Sketcher.Constraint("Coincident", 5, 2, 6, 1))
sketch14.addConstraint(Sketcher.Constraint("Coincident", 6, 2, 7, 1))
sketch14.addConstraint(Sketcher.Constraint("Coincident", 7, 2, 8, 1))
sketch14.addConstraint(Sketcher.Constraint("Coincident", 8, 2, 9, 1))
sketch14.addConstraint(Sketcher.Constraint("Coincident", 9, 2, 10, 1))
sketch14.addConstraint(Sketcher.Constraint("Coincident", 10, 2, 11, 1))
sketch14.addConstraint(Sketcher.Constraint("Coincident", 11, 2, 0, 1))
sketch14.addConstraint(Sketcher.Constraint("Vertical", 0))
sketch14.addConstraint(Sketcher.Constraint("Horizontal", 1))
sketch14.addConstraint(Sketcher.Constraint("Vertical", 2))
sketch14.addConstraint(Sketcher.Constraint("Horizontal", 3))
sketch14.addConstraint(Sketcher.Constraint("Vertical", 4))
sketch14.addConstraint(Sketcher.Constraint("Horizontal", 5))
sketch14.addConstraint(Sketcher.Constraint("Horizontal", 7))
sketch14.addConstraint(Sketcher.Constraint("Horizontal", 9))
sketch14.addConstraint(Sketcher.Constraint("Vertical", 10))
sketch14.addConstraint(Sketcher.Constraint("Horizontal", 11))
sketch14.addConstraint(Sketcher.Constraint("Equal", 6, 8))
sketch14.addConstraint(Sketcher.Constraint("Symmetric", 3, 2, 10, 2, -1, 1))
sketch14.addConstraint(Sketcher.Constraint("Symmetric", 6, 3, 8, 3, -2))
sketch14.addConstraint(Sketcher.Constraint("Symmetric", 2, 2, 11, 2, -2))
sketch14.addConstraint(Sketcher.Constraint("Horizontal", 8, 3, 4, 2))
sketch14.addConstraint(Sketcher.Constraint("Horizontal", 5, 2, 6, 2))
sketch14.addConstraint(Sketcher.Constraint("Horizontal", 7, 2, 8, 2))
sketch14.addConstraint(Sketcher.Constraint("DistanceX", 1, 2, 1, 1, 37.0))
sketch14.addConstraint(Sketcher.Constraint("DistanceX", 3, 2, 3, 1, 9.0))
sketch14.addConstraint(Sketcher.Constraint("DistanceY", 0, 2, 0, 1, 5.0))
sketch14.addConstraint(Sketcher.Constraint("DistanceY", 4, 1, 4, 2, 12.0))
sketch14.addConstraint(Sketcher.Constraint("Radius", 6, 4.25))
sketch14.addConstraint(Sketcher.Constraint("DistanceX", 7, 1, 7, 2, 16.5))
pocket10 = doc.addObject("PartDesign::Pocket", "Pocket009")
body.addObject(pocket10)
pocket10.Profile = sketch14
pocket10.Length = 0.25
pocket10.Reversed = True

doc.recompute()
